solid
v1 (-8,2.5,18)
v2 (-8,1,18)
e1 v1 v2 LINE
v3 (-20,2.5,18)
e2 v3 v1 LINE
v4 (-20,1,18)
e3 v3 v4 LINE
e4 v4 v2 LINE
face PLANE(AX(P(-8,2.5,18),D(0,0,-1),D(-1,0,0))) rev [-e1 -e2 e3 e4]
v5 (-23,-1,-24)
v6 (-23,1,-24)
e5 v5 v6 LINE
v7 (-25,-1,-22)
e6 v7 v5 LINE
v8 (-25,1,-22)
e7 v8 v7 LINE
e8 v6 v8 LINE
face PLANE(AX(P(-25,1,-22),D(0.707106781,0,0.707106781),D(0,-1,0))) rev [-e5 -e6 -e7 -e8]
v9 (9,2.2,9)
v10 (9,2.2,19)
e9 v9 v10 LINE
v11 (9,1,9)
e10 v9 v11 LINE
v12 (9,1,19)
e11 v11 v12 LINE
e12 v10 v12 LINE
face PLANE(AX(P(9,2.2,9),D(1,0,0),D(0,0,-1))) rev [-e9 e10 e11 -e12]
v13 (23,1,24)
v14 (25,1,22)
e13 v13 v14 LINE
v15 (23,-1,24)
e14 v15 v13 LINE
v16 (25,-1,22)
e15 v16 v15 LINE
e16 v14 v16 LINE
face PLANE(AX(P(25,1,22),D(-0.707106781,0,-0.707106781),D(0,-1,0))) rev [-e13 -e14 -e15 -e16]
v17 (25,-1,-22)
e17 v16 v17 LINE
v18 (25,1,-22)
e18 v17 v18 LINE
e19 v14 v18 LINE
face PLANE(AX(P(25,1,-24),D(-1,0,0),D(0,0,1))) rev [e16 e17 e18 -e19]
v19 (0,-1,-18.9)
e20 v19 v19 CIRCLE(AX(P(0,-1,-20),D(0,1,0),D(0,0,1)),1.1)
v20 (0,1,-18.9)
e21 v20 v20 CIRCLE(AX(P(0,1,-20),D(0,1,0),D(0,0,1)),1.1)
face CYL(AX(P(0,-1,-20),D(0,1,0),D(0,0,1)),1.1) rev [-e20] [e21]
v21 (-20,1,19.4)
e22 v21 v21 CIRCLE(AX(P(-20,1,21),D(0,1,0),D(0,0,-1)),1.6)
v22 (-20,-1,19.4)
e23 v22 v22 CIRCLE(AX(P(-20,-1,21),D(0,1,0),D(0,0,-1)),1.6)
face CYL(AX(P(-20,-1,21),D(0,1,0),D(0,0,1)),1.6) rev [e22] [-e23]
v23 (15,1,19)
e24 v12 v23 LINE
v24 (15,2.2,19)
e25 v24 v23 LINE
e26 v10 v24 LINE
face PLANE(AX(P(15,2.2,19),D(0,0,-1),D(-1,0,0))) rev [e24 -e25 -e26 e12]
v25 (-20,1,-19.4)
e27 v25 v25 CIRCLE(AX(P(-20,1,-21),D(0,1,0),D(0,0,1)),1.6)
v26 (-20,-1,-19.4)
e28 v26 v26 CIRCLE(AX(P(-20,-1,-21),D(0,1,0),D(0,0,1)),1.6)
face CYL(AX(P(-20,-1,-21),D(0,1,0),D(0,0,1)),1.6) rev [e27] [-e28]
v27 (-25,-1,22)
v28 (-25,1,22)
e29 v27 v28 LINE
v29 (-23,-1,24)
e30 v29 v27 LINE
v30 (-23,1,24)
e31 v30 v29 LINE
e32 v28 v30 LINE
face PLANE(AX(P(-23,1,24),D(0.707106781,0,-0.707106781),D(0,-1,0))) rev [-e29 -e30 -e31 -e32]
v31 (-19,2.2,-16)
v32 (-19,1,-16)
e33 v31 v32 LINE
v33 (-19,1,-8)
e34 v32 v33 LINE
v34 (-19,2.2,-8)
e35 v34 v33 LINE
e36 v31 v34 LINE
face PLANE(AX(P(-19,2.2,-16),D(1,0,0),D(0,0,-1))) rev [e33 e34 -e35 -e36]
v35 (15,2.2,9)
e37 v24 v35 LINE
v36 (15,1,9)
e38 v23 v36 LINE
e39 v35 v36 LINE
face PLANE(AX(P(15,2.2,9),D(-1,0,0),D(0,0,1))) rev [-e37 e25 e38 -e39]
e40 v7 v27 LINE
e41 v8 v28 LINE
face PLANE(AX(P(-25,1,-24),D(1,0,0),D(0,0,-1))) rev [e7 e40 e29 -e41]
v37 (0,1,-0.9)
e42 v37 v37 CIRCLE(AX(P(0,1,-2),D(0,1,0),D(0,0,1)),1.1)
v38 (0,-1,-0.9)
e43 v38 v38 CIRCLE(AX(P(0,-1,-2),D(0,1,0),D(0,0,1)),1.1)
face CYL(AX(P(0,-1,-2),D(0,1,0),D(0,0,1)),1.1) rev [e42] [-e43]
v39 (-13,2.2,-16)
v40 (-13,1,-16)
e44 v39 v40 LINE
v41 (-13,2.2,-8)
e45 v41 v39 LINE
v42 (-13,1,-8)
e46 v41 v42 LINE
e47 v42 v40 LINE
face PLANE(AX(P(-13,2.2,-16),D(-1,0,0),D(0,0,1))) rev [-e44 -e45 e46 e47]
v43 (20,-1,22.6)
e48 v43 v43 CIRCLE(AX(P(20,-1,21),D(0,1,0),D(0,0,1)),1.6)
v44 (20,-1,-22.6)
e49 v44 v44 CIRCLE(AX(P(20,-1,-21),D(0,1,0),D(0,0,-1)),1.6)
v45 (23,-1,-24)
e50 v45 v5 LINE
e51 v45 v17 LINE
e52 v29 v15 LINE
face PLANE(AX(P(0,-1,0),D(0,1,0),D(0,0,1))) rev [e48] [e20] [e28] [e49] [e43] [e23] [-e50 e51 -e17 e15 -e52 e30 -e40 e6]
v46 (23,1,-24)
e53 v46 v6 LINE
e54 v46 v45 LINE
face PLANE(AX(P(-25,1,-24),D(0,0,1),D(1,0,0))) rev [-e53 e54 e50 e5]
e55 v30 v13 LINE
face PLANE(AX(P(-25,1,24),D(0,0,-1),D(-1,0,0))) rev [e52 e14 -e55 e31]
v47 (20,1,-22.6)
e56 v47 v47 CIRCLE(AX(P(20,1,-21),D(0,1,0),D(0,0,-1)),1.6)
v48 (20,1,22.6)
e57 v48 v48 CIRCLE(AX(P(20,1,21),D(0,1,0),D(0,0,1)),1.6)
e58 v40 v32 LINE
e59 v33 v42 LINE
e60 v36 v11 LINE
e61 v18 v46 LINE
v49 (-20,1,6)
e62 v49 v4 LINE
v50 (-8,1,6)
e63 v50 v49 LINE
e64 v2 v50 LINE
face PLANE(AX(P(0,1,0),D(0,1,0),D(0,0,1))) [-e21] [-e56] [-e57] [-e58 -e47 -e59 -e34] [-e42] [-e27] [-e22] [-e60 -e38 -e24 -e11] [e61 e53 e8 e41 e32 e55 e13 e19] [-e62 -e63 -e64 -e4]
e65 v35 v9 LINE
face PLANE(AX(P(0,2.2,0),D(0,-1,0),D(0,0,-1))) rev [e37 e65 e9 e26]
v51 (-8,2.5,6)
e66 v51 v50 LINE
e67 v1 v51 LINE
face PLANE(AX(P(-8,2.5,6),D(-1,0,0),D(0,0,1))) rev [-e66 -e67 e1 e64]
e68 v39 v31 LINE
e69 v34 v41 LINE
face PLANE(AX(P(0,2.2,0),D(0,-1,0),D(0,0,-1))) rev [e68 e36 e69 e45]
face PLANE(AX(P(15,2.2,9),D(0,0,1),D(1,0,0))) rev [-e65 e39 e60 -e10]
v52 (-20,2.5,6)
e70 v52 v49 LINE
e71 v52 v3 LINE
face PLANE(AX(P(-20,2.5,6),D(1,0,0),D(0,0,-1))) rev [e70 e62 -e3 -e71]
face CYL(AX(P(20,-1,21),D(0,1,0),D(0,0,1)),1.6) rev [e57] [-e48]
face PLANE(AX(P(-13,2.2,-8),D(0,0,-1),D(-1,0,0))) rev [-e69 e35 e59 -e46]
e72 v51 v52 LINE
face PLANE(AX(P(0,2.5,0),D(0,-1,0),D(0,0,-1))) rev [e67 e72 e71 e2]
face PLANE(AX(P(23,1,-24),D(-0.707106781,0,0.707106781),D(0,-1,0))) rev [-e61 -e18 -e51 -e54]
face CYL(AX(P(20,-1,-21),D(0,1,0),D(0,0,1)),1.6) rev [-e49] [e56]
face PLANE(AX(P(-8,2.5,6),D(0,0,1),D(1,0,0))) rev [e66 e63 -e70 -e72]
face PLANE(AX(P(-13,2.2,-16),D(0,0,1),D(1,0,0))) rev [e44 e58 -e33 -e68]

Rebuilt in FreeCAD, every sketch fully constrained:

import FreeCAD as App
import Part
import Sketcher

V = App.Vector


def edges_at(feature, points):
    """Names of the edges that pass closest to the given points."""
    edges = feature.Shape.Edges
    near = lambda p: min(range(len(edges)), key=lambda i: edges[i].distToShape(Part.Vertex(*p))[0])
    return sorted({f"Edge{near(p) + 1}" for p in points})

doc = App.newDocument("Part")
params = doc.addObject("Spreadsheet::Sheet", "Params")
for row, (alias, value) in enumerate([
    ("sketch1_width", "50 mm"),
    ("sketch1_height", "48 mm"),
    ("pad1_length", "2 mm"),
    ("chamfer_size", "2 mm"),
    ("sketch2_diameter", "3.2 mm"),
    ("sketch2_diameter2", "2.2 mm"),
    ("sketch3_width", "12 mm"),
    ("pad2_length", "1.5 mm"),
    ("sketch4_width", "6 mm"),
    ("sketch4_height", "8 mm"),
    ("sketch4_height2", "10 mm"),
    ("pad3_length", "1.2 mm"),
], start=1):
    params.set(f"A{row}", alias)
    params.set(f"B{row}", "=" + value)
    params.setAlias(f"B{row}", alias)

body = doc.addObject("PartDesign::Body", "Body")

sketch1 = body.newObject("Sketcher::SketchObject", "Sketch")
sketch1.AttachmentSupport = (doc.getObject("XZ_Plane"), [""])
sketch1.MapMode = "FlatFace"
sketch1.addGeometry(Part.LineSegment(V(-25, -24, 0), V(-25, 24, 0)), False)
sketch1.addGeometry(Part.LineSegment(V(-25, 24, 0), V(25, 24, 0)), False)
sketch1.addGeometry(Part.LineSegment(V(25, 24, 0), V(25, -24, 0)), False)
sketch1.addGeometry(Part.LineSegment(V(25, -24, 0), V(-25, -24, 0)), False)
sketch1.addConstraint(Sketcher.Constraint("Coincident", 0, 2, 1, 1))
sketch1.addConstraint(Sketcher.Constraint("Coincident", 1, 2, 2, 1))
sketch1.addConstraint(Sketcher.Constraint("Coincident", 2, 2, 3, 1))
sketch1.addConstraint(Sketcher.Constraint("Coincident", 3, 2, 0, 1))
sketch1.addConstraint(Sketcher.Constraint("Vertical", 0))
sketch1.addConstraint(Sketcher.Constraint("Horizontal", 1))
sketch1.addConstraint(Sketcher.Constraint("Vertical", 2))
sketch1.addConstraint(Sketcher.Constraint("Horizontal", 3))
sketch1.addConstraint(Sketcher.Constraint("Symmetric", 0, 2, 2, 2, -1, 1))
sketch1.addConstraint(Sketcher.Constraint("DistanceX", 1, 1, 1, 2, 50.0))
sketch1.addConstraint(Sketcher.Constraint("DistanceY", 0, 1, 0, 2, 48.0))
sketch1.setExpression("Constraints[9]", "Params.sketch1_width")
sketch1.setExpression("Constraints[10]", "Params.sketch1_height")
pad1 = body.newObject("PartDesign::Pad", "Pad")
pad1.Profile = sketch1
pad1.setExpression("Length", "Params.pad1_length")
pad1.Midplane = True
doc.recompute()

chamfer = body.newObject("PartDesign::Chamfer", "Chamfer")
chamfer.Base = (pad1, edges_at(pad1, [
    (-25, 0, -24),
    (25, 0, -24),
    (25, 0, 24),
    (-25, 0, 24),
]))
chamfer.setExpression("Size", "Params.chamfer_size")

sketch2 = body.newObject("Sketcher::SketchObject", "Sketch001")
sketch2.AttachmentSupport = (doc.getObject("XZ_Plane"), [""])
sketch2.MapMode = "FlatFace"
sketch2.AttachmentOffset = App.Placement(V(0, 0, -1), App.Rotation())
sketch2.addGeometry(Part.Circle(V(-20, -21, 0), V(0, 0, 1), 1.6), False)
sketch2.addGeometry(Part.Circle(V(20, -21, 0), V(0, 0, 1), 1.6), False)
sketch2.addGeometry(Part.Circle(V(20, 21, 0), V(0, 0, 1), 1.6), False)
sketch2.addGeometry(Part.Circle(V(-20, 21, 0), V(0, 0, 1), 1.6), False)
sketch2.addGeometry(Part.Circle(V(0, -20, 0), V(0, 0, 1), 1.1), False)
sketch2.addGeometry(Part.Circle(V(0, -2, 0), V(0, 0, 1), 1.1), False)
sketch2.addConstraint(Sketcher.Constraint("Equal", 0, 1))
sketch2.addConstraint(Sketcher.Constraint("Equal", 1, 2))
sketch2.addConstraint(Sketcher.Constraint("Equal", 2, 3))
sketch2.addConstraint(Sketcher.Constraint("Equal", 4, 5))
sketch2.addConstraint(Sketcher.Constraint("Symmetric", 0, 3, 2, 3, -1, 1))
sketch2.addConstraint(Sketcher.Constraint("Symmetric", 1, 3, 3, 3, -1, 1))
sketch2.addConstraint(Sketcher.Constraint("Symmetric", 0, 3, 1, 3, -2))
sketch2.addConstraint(Sketcher.Constraint("PointOnObject", 4, 3, -2))
sketch2.addConstraint(Sketcher.Constraint("PointOnObject", 5, 3, -2))
sketch2.addConstraint(Sketcher.Constraint("Diameter", 0, 3.2))
sketch2.addConstraint(Sketcher.Constraint("Diameter", 4, 2.2))
sketch2.addConstraint(Sketcher.Constraint("DistanceX", 0, 3, -1, 1, 20.0))
sketch2.addConstraint(Sketcher.Constraint("DistanceY", 0, 3, -1, 1, 21.0))
sketch2.addConstraint(Sketcher.Constraint("DistanceY", 4, 3, -1, 1, 20.0))
sketch2.addConstraint(Sketcher.Constraint("DistanceY", 5, 3, -1, 1, 2.0))
sketch2.setExpression("Constraints[9]", "Params.sketch2_diameter")
sketch2.setExpression("Constraints[10]", "Params.sketch2_diameter2")
pocket1 = body.newObject("PartDesign::Pocket", "Pocket")
pocket1.Profile = sketch2
pocket1.Type = "ThroughAll"
pocket1.Reversed = True

sketch3 = body.newObject("Sketcher::SketchObject", "Sketch002")
sketch3.AttachmentSupport = (doc.getObject("XZ_Plane"), [""])
sketch3.MapMode = "FlatFace"
sketch3.AttachmentOffset = App.Placement(V(0, 0, -1), App.Rotation())
sketch3.addGeometry(Part.LineSegment(V(-20, 6, 0), V(-20, 18, 0)), False)
sketch3.addGeometry(Part.LineSegment(V(-20, 18, 0), V(-8, 18, 0)), False)
sketch3.addGeometry(Part.LineSegment(V(-8, 18, 0), V(-8, 6, 0)), False)
sketch3.addGeometry(Part.LineSegment(V(-8, 6, 0), V(-20, 6, 0)), False)
sketch3.addConstraint(Sketcher.Constraint("Coincident", 0, 2, 1, 1))
sketch3.addConstraint(Sketcher.Constraint("Coincident", 1, 2, 2, 1))
sketch3.addConstraint(Sketcher.Constraint("Coincident", 2, 2, 3, 1))
sketch3.addConstraint(Sketcher.Constraint("Coincident", 3, 2, 0, 1))
sketch3.addConstraint(Sketcher.Constraint("Vertical", 0))
sketch3.addConstraint(Sketcher.Constraint("Horizontal", 1))
sketch3.addConstraint(Sketcher.Constraint("Vertical", 2))
sketch3.addConstraint(Sketcher.Constraint("Horizontal", 3))
sketch3.addConstraint(Sketcher.Constraint("Equal", 3, 0))
sketch3.addConstraint(Sketcher.Constraint("DistanceX", 1, 1, 1, 2, 12.0))
sketch3.addConstraint(Sketcher.Constraint("DistanceX", 0, 2, -1, 1, 20.0))
sketch3.addConstraint(Sketcher.Constraint("DistanceY", -1, 1, 0, 2, 18.0))
sketch3.setExpression("Constraints[9]", "Params.sketch3_width")
pad2 = body.newObject("PartDesign::Pad", "Pad001")
pad2.Profile = sketch3
pad2.setExpression("Length", "Params.pad2_length")
pad2.Reversed = True

sketch4 = body.newObject("Sketcher::SketchObject", "Sketch003")
sketch4.AttachmentSupport = (doc.getObject("XZ_Plane"), [""])
sketch4.MapMode = "FlatFace"
sketch4.AttachmentOffset = App.Placement(V(0, 0, -1), App.Rotation())
sketch4.addGeometry(Part.LineSegment(V(-19, -16, 0), V(-19, -8, 0)), False)
sketch4.addGeometry(Part.LineSegment(V(-19, -8, 0), V(-13, -8, 0)), False)
sketch4.addGeometry(Part.LineSegment(V(-13, -8, 0), V(-13, -16, 0)), False)
sketch4.addGeometry(Part.LineSegment(V(-13, -16, 0), V(-19, -16, 0)), False)
sketch4.addGeometry(Part.LineSegment(V(9, 9, 0), V(9, 19, 0)), False)
sketch4.addGeometry(Part.LineSegment(V(9, 19, 0), V(15, 19, 0)), False)
sketch4.addGeometry(Part.LineSegment(V(15, 19, 0), V(15, 9, 0)), False)
sketch4.addGeometry(Part.LineSegment(V(15, 9, 0), V(9, 9, 0)), False)
sketch4.addConstraint(Sketcher.Constraint("Coincident", 0, 2, 1, 1))
sketch4.addConstraint(Sketcher.Constraint("Coincident", 1, 2, 2, 1))
sketch4.addConstraint(Sketcher.Constraint("Coincident", 2, 2, 3, 1))
sketch4.addConstraint(Sketcher.Constraint("Coincident", 3, 2, 0, 1))
sketch4.addConstraint(Sketcher.Constraint("Coincident", 4, 2, 5, 1))
sketch4.addConstraint(Sketcher.Constraint("Coincident", 5, 2, 6, 1))
sketch4.addConstraint(Sketcher.Constraint("Coincident", 6, 2, 7, 1))
sketch4.addConstraint(Sketcher.Constraint("Coincident", 7, 2, 4, 1))
sketch4.addConstraint(Sketcher.Constraint("Vertical", 0))
sketch4.addConstraint(Sketcher.Constraint("Horizontal", 1))
sketch4.addConstraint(Sketcher.Constraint("Vertical", 2))
sketch4.addConstraint(Sketcher.Constraint("Horizontal", 3))
sketch4.addConstraint(Sketcher.Constraint("Vertical", 4))
sketch4.addConstraint(Sketcher.Constraint("Horizontal", 5))
sketch4.addConstraint(Sketcher.Constraint("Vertical", 6))
sketch4.addConstraint(Sketcher.Constraint("Horizontal", 7))
sketch4.addConstraint(Sketcher.Constraint("Equal", 3, 5))
sketch4.addConstraint(Sketcher.Constraint("DistanceX", 1, 1, 1, 2, 6.0))
sketch4.addConstraint(Sketcher.Constraint("DistanceY", 0, 1, 0, 2, 8.0))
sketch4.addConstraint(Sketcher.Constraint("DistanceY", 4, 1, 4, 2, 10.0))
sketch4.addConstraint(Sketcher.Constraint("DistanceX", 0, 2, -1, 1, 19.0))
sketch4.addConstraint(Sketcher.Constraint("DistanceY", 0, 2, -1, 1, 8.0))
sketch4.addConstraint(Sketcher.Constraint("DistanceX", -1, 1, 4, 2, 9.0))
sketch4.addConstraint(Sketcher.Constraint("DistanceY", -1, 1, 4, 2, 19.0))
sketch4.setExpression("Constraints[17]", "Params.sketch4_width")
sketch4.setExpression("Constraints[18]", "Params.sketch4_height")
sketch4.setExpression("Constraints[19]", "Params.sketch4_height2")
pad3 = body.newObject("PartDesign::Pad", "Pad002")
pad3.Profile = sketch4
pad3.setExpression("Length", "Params.pad3_length")
pad3.Reversed = True

doc.recompute()
